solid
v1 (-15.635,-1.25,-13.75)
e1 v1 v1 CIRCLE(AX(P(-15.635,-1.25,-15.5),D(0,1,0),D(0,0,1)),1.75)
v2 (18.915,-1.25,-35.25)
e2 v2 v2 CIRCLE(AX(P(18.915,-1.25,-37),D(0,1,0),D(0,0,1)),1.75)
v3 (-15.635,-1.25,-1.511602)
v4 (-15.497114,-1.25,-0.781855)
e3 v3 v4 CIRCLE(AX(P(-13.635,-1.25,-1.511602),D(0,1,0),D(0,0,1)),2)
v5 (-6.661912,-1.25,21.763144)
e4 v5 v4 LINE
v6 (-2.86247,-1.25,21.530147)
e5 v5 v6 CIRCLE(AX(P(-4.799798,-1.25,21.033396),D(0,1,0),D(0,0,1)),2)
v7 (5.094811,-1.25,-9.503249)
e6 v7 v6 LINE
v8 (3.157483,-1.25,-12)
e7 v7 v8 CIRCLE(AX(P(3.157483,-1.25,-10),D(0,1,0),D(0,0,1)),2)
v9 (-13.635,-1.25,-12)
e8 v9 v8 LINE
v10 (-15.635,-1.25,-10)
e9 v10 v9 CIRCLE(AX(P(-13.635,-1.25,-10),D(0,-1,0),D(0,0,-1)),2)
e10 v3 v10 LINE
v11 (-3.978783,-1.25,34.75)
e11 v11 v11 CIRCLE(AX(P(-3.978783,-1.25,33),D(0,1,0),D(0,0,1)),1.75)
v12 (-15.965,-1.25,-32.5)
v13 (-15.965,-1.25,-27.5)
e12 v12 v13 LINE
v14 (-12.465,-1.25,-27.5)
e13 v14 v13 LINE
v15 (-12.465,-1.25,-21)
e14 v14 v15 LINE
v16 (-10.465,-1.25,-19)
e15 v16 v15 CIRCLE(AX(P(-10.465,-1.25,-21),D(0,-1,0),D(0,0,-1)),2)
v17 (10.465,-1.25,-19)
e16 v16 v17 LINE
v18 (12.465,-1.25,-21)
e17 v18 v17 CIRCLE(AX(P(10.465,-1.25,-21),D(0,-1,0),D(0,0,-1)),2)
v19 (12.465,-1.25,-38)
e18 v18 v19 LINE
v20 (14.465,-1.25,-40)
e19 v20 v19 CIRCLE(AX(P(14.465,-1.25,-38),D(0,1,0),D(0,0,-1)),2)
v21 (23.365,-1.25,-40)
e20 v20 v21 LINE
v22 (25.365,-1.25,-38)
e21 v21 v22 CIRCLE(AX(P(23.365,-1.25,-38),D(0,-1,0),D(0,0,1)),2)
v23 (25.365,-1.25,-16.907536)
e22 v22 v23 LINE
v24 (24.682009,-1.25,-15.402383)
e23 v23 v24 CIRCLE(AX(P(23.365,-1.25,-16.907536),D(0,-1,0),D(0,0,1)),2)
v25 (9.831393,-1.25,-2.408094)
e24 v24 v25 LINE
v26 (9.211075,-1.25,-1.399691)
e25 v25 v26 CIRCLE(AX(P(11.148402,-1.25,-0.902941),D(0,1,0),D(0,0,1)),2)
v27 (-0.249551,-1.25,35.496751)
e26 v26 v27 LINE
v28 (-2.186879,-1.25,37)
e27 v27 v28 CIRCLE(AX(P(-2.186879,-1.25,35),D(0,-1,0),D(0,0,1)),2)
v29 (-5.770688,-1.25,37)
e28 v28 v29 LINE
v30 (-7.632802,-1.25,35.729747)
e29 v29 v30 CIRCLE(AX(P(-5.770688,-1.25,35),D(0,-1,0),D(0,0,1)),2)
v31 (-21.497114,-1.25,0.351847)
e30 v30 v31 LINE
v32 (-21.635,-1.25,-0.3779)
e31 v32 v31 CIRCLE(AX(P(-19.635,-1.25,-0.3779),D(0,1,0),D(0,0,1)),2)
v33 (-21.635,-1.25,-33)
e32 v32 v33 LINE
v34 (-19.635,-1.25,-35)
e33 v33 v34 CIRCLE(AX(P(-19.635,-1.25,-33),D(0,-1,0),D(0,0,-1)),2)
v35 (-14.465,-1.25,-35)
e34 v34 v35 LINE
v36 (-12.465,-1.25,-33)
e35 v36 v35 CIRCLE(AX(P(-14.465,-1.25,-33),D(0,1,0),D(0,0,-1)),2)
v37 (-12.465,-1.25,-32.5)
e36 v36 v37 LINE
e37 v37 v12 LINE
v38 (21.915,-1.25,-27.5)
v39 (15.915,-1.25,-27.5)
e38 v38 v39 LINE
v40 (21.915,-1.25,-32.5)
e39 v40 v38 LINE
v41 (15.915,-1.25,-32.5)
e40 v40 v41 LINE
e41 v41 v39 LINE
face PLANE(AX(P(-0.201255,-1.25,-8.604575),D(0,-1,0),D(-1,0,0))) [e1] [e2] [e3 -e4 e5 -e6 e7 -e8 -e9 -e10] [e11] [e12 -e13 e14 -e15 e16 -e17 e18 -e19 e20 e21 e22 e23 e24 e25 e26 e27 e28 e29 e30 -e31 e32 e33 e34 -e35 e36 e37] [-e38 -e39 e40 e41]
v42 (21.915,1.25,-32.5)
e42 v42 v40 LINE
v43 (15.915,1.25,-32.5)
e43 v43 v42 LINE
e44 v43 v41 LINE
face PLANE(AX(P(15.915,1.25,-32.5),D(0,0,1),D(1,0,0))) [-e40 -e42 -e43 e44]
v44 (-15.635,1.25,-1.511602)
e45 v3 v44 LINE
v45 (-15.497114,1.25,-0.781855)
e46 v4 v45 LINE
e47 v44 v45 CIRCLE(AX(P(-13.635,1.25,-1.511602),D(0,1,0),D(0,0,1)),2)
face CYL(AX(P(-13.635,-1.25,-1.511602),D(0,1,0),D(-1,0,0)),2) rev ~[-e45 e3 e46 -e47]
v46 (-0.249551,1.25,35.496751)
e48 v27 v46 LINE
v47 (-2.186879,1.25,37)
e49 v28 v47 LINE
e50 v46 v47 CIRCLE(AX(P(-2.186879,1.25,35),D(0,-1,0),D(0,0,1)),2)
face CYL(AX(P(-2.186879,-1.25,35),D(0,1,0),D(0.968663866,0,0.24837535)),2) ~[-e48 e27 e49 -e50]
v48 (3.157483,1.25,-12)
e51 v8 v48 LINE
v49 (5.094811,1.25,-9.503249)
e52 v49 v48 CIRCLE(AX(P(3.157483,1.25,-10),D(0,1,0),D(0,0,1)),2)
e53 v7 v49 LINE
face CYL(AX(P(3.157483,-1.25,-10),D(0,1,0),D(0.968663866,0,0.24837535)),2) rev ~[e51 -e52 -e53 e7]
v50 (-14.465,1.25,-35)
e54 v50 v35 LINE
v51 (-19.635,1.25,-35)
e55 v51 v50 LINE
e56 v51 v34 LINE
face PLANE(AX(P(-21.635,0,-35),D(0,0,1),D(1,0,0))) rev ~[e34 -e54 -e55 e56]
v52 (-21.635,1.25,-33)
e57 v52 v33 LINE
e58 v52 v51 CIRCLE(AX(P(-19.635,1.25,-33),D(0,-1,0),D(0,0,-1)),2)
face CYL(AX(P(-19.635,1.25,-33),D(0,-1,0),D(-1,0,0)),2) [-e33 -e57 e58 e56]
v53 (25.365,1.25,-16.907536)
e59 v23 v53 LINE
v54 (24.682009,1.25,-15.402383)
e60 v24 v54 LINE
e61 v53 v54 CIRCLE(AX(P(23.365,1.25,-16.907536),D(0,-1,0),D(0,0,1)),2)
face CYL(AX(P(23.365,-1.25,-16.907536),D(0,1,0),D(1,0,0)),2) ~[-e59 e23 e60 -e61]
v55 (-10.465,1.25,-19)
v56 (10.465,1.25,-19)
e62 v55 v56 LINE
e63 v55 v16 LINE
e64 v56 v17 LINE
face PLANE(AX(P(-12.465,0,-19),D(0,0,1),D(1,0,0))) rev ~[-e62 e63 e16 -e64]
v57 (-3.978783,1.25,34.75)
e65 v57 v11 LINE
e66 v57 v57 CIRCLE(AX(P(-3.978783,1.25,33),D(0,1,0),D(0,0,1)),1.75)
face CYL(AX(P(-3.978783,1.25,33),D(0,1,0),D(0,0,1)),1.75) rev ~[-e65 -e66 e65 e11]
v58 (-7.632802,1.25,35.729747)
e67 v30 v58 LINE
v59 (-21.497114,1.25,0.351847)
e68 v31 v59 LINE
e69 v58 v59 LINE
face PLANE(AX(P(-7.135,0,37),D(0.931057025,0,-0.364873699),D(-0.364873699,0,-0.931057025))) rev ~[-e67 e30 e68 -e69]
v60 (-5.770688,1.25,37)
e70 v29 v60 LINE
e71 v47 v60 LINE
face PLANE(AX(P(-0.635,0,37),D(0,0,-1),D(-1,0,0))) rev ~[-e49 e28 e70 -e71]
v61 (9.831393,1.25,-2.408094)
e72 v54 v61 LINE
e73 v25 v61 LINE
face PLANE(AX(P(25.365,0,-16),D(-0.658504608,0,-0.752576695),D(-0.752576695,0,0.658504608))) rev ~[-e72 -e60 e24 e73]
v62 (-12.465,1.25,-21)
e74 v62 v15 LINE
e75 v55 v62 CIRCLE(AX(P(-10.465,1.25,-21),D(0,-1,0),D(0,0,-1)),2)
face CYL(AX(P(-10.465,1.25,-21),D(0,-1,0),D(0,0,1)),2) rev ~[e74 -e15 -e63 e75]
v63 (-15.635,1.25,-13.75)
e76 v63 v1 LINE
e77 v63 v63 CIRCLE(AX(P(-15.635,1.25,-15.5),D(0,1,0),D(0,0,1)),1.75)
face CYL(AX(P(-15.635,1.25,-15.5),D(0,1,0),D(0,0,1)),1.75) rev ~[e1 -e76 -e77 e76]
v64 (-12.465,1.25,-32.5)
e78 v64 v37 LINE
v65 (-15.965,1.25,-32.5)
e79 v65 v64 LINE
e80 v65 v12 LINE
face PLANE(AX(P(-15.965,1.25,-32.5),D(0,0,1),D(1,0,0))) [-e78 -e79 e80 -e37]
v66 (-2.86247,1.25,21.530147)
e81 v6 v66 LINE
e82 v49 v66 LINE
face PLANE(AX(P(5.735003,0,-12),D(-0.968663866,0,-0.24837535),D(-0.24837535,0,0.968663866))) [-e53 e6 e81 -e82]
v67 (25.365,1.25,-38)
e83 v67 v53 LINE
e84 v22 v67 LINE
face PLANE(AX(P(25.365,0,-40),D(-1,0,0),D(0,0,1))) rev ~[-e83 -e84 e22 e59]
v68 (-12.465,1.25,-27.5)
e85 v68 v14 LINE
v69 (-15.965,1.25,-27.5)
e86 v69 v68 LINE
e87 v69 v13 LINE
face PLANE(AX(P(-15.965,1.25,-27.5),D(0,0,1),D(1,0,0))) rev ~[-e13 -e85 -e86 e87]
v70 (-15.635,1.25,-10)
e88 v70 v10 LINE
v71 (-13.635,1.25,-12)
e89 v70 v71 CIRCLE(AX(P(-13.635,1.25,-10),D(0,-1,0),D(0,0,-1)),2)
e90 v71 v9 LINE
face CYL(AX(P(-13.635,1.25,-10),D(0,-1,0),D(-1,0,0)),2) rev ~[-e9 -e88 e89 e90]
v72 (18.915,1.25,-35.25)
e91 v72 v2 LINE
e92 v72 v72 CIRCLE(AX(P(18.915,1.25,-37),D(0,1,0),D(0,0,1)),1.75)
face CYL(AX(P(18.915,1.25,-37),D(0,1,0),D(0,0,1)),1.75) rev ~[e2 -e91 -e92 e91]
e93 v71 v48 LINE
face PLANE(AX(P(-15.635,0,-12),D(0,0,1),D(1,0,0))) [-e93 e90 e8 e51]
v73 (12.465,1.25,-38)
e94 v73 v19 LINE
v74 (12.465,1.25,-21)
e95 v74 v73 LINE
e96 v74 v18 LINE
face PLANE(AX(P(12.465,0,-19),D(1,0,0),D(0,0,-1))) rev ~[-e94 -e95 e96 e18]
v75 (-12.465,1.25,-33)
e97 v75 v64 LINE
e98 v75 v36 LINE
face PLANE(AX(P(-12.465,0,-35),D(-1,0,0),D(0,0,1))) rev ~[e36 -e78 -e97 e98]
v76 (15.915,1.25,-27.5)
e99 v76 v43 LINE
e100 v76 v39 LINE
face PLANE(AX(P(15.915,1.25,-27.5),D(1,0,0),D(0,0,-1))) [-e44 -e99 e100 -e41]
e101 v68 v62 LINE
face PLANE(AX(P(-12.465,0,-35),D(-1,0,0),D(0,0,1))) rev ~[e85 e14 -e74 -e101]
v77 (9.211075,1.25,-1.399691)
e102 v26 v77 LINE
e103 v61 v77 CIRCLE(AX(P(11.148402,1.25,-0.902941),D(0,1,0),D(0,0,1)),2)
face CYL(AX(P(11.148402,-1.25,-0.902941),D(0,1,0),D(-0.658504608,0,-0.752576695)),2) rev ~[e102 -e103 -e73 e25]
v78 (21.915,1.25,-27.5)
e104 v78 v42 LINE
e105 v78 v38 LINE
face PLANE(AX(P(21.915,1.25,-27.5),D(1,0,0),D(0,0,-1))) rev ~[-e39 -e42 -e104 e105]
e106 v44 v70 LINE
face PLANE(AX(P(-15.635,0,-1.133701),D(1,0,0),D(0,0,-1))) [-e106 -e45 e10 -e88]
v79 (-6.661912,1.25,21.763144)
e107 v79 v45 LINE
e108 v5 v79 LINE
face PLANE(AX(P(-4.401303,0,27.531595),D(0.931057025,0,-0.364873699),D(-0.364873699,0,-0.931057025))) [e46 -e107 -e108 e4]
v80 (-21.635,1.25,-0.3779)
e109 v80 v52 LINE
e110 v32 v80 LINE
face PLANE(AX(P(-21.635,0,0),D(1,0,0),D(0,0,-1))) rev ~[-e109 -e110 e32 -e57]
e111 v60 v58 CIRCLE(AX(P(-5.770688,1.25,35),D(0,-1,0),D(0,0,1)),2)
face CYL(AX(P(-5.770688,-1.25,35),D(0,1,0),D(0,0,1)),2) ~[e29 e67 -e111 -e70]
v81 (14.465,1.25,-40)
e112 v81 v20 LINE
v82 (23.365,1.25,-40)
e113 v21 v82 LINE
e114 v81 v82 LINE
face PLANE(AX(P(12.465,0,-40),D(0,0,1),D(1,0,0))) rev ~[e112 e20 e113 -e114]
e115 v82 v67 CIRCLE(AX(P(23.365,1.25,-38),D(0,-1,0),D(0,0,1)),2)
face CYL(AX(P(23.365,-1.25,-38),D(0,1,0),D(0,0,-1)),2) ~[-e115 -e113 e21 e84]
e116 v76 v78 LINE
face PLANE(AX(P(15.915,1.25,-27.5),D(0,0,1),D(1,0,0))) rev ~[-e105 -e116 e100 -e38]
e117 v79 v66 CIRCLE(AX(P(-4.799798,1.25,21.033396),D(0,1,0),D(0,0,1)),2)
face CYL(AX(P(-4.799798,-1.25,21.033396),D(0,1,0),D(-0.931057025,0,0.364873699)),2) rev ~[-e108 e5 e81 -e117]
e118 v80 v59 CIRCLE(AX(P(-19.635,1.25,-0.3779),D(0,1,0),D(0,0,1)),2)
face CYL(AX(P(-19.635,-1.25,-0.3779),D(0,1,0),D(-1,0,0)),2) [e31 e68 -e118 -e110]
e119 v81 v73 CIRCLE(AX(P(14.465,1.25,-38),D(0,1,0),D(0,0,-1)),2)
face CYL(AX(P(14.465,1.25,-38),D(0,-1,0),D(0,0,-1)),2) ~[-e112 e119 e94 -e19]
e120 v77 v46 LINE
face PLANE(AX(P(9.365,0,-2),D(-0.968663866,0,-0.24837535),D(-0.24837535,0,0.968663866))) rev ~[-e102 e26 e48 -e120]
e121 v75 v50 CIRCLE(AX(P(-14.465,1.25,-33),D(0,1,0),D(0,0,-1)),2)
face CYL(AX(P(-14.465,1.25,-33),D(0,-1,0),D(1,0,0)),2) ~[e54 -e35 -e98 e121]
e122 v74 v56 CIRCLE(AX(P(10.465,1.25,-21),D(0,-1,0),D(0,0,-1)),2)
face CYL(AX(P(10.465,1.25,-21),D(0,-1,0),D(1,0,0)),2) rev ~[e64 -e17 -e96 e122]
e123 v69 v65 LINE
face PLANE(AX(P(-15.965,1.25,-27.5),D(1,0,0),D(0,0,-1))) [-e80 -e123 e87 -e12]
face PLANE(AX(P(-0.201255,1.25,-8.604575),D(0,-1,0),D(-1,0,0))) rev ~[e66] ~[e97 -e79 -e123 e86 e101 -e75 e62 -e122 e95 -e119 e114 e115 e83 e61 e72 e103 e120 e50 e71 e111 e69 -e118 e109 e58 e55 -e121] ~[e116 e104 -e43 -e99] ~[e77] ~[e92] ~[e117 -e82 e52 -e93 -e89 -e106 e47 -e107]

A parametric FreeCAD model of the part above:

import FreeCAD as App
import Part
import Sketcher
from FreeCAD import Vector


def edges_at(feature, points):
    """Names of the edges that pass closest to the given points."""
    edges = feature.Shape.Edges
    near = lambda p: min(range(len(edges)), key=lambda i: edges[i].distToShape(Part.Vertex(*p))[0])
    return sorted({f"Edge{near(p) + 1}" for p in points})

doc = App.newDocument("Part")
body = doc.addObject("PartDesign::Body", "Body")

# Sketch on XZ plane
sketch1 = doc.addObject("Sketcher::SketchObject", "Sketch")
body.addObject(sketch1)
sketch1.AttachmentSupport = (doc.XZ_Plane, [""])
sketch1.MapMode = "FlatFace"
sketch1.addGeometry([
    Part.LineSegment(Vector(-22, -35, 0), Vector(-22, 0, 0)),  # 0
    Part.LineSegment(Vector(-22, 0, 0), Vector(-7, 37, 0)),  # 1
    Part.LineSegment(Vector(-7, 37, 0), Vector(-1, 37, 0)),  # 2
    Part.LineSegment(Vector(-1, 37, 0), Vector(9, -2, 0)),  # 3
    Part.LineSegment(Vector(9, -2, 0), Vector(25, -16, 0)),  # 4
    Part.LineSegment(Vector(25, -16, 0), Vector(25, -40, 0)),  # 5
    Part.LineSegment(Vector(25, -40, 0), Vector(12, -40, 0)),  # 6
    Part.LineSegment(Vector(12, -40, 0), Vector(12, -19, 0)),  # 7
    Part.LineSegment(Vector(12, -19, 0), Vector(-12, -19, 0)),  # 8
    Part.LineSegment(Vector(-12, -19, 0), Vector(-12, -35, 0)),  # 9
    Part.LineSegment(Vector(-12, -35, 0), Vector(-22, -35, 0)),  # 10
    Part.LineSegment(Vector(-16, -12, 0), Vector(6, -12, 0)),  # 11
    Part.LineSegment(Vector(6, -12, 0), Vector(-4, 28, 0)),  # 12
    Part.LineSegment(Vector(-4, 28, 0), Vector(-16, -1, 0)),  # 13
    Part.LineSegment(Vector(-16, -1, 0), Vector(-16, -12, 0)),  # 14
], False)
sketch1.addConstraint([
    Sketcher.Constraint("Coincident", 0, 2, 1, 1),
    Sketcher.Constraint("Coincident", 1, 2, 2, 1),
    Sketcher.Constraint("Coincident", 2, 2, 3, 1),
    Sketcher.Constraint("Coincident", 3, 2, 4, 1),
    Sketcher.Constraint("Coincident", 4, 2, 5, 1),
    Sketcher.Constraint("Coincident", 5, 2, 6, 1),
    Sketcher.Constraint("Coincident", 6, 2, 7, 1),
    Sketcher.Constraint("Coincident", 7, 2, 8, 1),
    Sketcher.Constraint("Coincident", 8, 2, 9, 1),
    Sketcher.Constraint("Coincident", 9, 2, 10, 1),
    Sketcher.Constraint("Coincident", 10, 2, 0, 1),
    Sketcher.Constraint("Coincident", 11, 2, 12, 1),
    Sketcher.Constraint("Coincident", 12, 2, 13, 1),
    Sketcher.Constraint("Coincident", 13, 2, 14, 1),
    Sketcher.Constraint("Coincident", 14, 2, 11, 1),
    Sketcher.Constraint("Vertical", 0),
    Sketcher.Constraint("Horizontal", 2),
    Sketcher.Constraint("Vertical", 5),
    Sketcher.Constraint("Horizontal", 6),
    Sketcher.Constraint("Vertical", 7),
    Sketcher.Constraint("Horizontal", 8),
    Sketcher.Constraint("Vertical", 9),
    Sketcher.Constraint("Horizontal", 10),
    Sketcher.Constraint("Horizontal", 11),
    Sketcher.Constraint("Vertical", 14),
    Sketcher.Constraint("PointOnObject", 0, 2, -1),
    Sketcher.Constraint("Parallel", 3, 12),
    Sketcher.Constraint("Parallel", 1, 13),
    Sketcher.Constraint("DistanceY", 0, 1, 0, 2, 35.0),
    Sketcher.Constraint("DistanceY", 5, 2, 5, 1, 24.0),
    Sketcher.Constraint("DistanceY", 7, 1, 7, 2, 21.0),
    Sketcher.Constraint("DistanceY", 9, 2, 9, 1, 16.0),
    Sketcher.Constraint("DistanceX", 2, 1, 2, 2, 6.5),
    Sketcher.Constraint("DistanceX", 6, 2, 6, 1, 12.9),
    Sketcher.Constraint("DistanceY", -1, 1, 1, 2, 37.0),
    Sketcher.Constraint("DistanceY", 3, 2, -1, 1, 2.0),
    Sketcher.Constraint("DistanceY", 11, 2, -1, 1, 12.0),
    Sketcher.Constraint("DistanceX", 0, 2, 2, 2, 21.0),
    Sketcher.Constraint("DistanceX", 0, 2, 3, 2, 31.0),
    Sketcher.Constraint("DistanceX", 3, 2, 4, 2, 16.0),
    Sketcher.Constraint("DistanceX", 0, 2, 13, 2, 6.0),
    Sketcher.Constraint("DistanceX", 8, 2, 8, 1, 24.93),
    Sketcher.Constraint("DistanceY", 14, 2, 14, 1, 10.866299),
    Sketcher.Constraint("DistanceX", 0, 2, -1, 1, 21.635),
    Sketcher.Constraint("DistanceX", 11, 1, 11, 2, 21.370003),
])
pad1 = doc.addObject("PartDesign::Pad", "Pad")
body.addObject(pad1)
pad1.Profile = sketch1
pad1.Length = 2.5
pad1.Midplane = True
doc.recompute()

fillet = doc.addObject("PartDesign::Fillet", "Fillet")
body.addObject(fillet)
fillet.Base = (pad1, edges_at(pad1, [
    (-21.635, 0, 0),
    (-21.635, 0, -35),
    (-12.465, 0, -35),
    (-12.465, 0, -19),
    (12.465, 0, -19),
    (12.465, 0, -40),
    (25.365, 0, -40),
    (25.365, 0, -16),
    (9.365, 0, -2),
    (-0.635, 0, 37),
    (-7.135, 0, 37),
    (-15.635, 0, -12),
    (-15.635, 0, -1.134),
    (-4.401, 0, 27.532),
    (5.735, 0, -12),
]))
fillet.Radius = 2

# Sketch on XZ plane
sketch2 = doc.addObject("Sketcher::SketchObject", "Sketch001")
body.addObject(sketch2)
sketch2.AttachmentSupport = (doc.XZ_Plane, [""])
sketch2.MapMode = "FlatFace"
sketch2.AttachmentOffset = App.Placement(Vector(0, 0, -1.25), App.Rotation())
sketch2.addGeometry([
    Part.Circle(Vector(18.9, -37, 0), Vector(0, 0, 1), 1.8),  # 0
    Part.Circle(Vector(-15.6, -15.5, 0), Vector(0, 0, 1), 1.8),  # 1
    Part.Circle(Vector(-4, 33, 0), Vector(0, 0, 1), 1.8),  # 2
    Part.LineSegment(Vector(15.9, -32.5, 0), Vector(15.9, -27.5, 0)),  # 3
    Part.LineSegment(Vector(15.9, -27.5, 0), Vector(21.9, -27.5, 0)),  # 4
    Part.LineSegment(Vector(21.9, -27.5, 0), Vector(21.9, -32.5, 0)),  # 5
    Part.LineSegment(Vector(21.9, -32.5, 0), Vector(15.9, -32.5, 0)),  # 6
    Part.LineSegment(Vector(-16, -32.5, 0), Vector(-16, -27.5, 0)),  # 7
    Part.LineSegment(Vector(-16, -27.5, 0), Vector(-12.5, -27.5, 0)),  # 8
    Part.LineSegment(Vector(-12.5, -27.5, 0), Vector(-12.5, -32.5, 0)),  # 9
    Part.LineSegment(Vector(-12.5, -32.5, 0), Vector(-16, -32.5, 0)),  # 10
], False)
sketch2.addConstraint([
    Sketcher.Constraint("Coincident", 3, 2, 4, 1),
    Sketcher.Constraint("Coincident", 4, 2, 5, 1),
    Sketcher.Constraint("Coincident", 5, 2, 6, 1),
    Sketcher.Constraint("Coincident", 6, 2, 3, 1),
    Sketcher.Constraint("Coincident", 7, 2, 8, 1),
    Sketcher.Constraint("Coincident", 8, 2, 9, 1),
    Sketcher.Constraint("Coincident", 9, 2, 10, 1),
    Sketcher.Constraint("Coincident", 10, 2, 7, 1),
    Sketcher.Constraint("Vertical", 3),
    Sketcher.Constraint("Horizontal", 4),
    Sketcher.Constraint("Vertical", 5),
    Sketcher.Constraint("Horizontal", 6),
    Sketcher.Constraint("Vertical", 7),
    Sketcher.Constraint("Horizontal", 8),
    Sketcher.Constraint("Vertical", 9),
    Sketcher.Constraint("Horizontal", 10),
    Sketcher.Constraint("Equal", 0, 1),
    Sketcher.Constraint("Equal", 1, 2),
    Sketcher.Constraint("Horizontal", 4, 2, 7, 2),
    Sketcher.Constraint("Horizontal", 6, 2, 9, 2),
    Sketcher.Constraint("Diameter", 0, 3.5),
    Sketcher.Constraint("DistanceX", 4, 1, 4, 2, 6.0),
    Sketcher.Constraint("DistanceY", 3, 1, 3, 2, 5.0),
    Sketcher.Constraint("DistanceX", 8, 1, 8, 2, 3.5),
    Sketcher.Constraint("DistanceY", 0, 3, -1, 1, 37.0),
    Sketcher.Constraint("DistanceY", -1, 1, 2, 3, 33.0),
    Sketcher.Constraint("DistanceX", 3, 2, 0, 3, 3.0),
    Sketcher.Constraint("DistanceY", 3, 2, 1, 3, 12.0),
    Sketcher.Constraint("DistanceY", 1, 3, -1, 1, 15.5),
    Sketcher.Constraint("DistanceX", 1, 3, 0, 3, 34.55),
    Sketcher.Constraint("DistanceX", 7, 2, 1, 3, 0.33),
    Sketcher.Constraint("DistanceX", -1, 1, 0, 3, 18.915),
    Sketcher.Constraint("DistanceX", 2, 3, -1, 1, 3.978783),
])
pocket1 = doc.addObject("PartDesign::Pocket", "Pocket")
body.addObject(pocket1)
pocket1.Profile = sketch2
pocket1.Type = "ThroughAll"
pocket1.Reversed = True

doc.recompute()
